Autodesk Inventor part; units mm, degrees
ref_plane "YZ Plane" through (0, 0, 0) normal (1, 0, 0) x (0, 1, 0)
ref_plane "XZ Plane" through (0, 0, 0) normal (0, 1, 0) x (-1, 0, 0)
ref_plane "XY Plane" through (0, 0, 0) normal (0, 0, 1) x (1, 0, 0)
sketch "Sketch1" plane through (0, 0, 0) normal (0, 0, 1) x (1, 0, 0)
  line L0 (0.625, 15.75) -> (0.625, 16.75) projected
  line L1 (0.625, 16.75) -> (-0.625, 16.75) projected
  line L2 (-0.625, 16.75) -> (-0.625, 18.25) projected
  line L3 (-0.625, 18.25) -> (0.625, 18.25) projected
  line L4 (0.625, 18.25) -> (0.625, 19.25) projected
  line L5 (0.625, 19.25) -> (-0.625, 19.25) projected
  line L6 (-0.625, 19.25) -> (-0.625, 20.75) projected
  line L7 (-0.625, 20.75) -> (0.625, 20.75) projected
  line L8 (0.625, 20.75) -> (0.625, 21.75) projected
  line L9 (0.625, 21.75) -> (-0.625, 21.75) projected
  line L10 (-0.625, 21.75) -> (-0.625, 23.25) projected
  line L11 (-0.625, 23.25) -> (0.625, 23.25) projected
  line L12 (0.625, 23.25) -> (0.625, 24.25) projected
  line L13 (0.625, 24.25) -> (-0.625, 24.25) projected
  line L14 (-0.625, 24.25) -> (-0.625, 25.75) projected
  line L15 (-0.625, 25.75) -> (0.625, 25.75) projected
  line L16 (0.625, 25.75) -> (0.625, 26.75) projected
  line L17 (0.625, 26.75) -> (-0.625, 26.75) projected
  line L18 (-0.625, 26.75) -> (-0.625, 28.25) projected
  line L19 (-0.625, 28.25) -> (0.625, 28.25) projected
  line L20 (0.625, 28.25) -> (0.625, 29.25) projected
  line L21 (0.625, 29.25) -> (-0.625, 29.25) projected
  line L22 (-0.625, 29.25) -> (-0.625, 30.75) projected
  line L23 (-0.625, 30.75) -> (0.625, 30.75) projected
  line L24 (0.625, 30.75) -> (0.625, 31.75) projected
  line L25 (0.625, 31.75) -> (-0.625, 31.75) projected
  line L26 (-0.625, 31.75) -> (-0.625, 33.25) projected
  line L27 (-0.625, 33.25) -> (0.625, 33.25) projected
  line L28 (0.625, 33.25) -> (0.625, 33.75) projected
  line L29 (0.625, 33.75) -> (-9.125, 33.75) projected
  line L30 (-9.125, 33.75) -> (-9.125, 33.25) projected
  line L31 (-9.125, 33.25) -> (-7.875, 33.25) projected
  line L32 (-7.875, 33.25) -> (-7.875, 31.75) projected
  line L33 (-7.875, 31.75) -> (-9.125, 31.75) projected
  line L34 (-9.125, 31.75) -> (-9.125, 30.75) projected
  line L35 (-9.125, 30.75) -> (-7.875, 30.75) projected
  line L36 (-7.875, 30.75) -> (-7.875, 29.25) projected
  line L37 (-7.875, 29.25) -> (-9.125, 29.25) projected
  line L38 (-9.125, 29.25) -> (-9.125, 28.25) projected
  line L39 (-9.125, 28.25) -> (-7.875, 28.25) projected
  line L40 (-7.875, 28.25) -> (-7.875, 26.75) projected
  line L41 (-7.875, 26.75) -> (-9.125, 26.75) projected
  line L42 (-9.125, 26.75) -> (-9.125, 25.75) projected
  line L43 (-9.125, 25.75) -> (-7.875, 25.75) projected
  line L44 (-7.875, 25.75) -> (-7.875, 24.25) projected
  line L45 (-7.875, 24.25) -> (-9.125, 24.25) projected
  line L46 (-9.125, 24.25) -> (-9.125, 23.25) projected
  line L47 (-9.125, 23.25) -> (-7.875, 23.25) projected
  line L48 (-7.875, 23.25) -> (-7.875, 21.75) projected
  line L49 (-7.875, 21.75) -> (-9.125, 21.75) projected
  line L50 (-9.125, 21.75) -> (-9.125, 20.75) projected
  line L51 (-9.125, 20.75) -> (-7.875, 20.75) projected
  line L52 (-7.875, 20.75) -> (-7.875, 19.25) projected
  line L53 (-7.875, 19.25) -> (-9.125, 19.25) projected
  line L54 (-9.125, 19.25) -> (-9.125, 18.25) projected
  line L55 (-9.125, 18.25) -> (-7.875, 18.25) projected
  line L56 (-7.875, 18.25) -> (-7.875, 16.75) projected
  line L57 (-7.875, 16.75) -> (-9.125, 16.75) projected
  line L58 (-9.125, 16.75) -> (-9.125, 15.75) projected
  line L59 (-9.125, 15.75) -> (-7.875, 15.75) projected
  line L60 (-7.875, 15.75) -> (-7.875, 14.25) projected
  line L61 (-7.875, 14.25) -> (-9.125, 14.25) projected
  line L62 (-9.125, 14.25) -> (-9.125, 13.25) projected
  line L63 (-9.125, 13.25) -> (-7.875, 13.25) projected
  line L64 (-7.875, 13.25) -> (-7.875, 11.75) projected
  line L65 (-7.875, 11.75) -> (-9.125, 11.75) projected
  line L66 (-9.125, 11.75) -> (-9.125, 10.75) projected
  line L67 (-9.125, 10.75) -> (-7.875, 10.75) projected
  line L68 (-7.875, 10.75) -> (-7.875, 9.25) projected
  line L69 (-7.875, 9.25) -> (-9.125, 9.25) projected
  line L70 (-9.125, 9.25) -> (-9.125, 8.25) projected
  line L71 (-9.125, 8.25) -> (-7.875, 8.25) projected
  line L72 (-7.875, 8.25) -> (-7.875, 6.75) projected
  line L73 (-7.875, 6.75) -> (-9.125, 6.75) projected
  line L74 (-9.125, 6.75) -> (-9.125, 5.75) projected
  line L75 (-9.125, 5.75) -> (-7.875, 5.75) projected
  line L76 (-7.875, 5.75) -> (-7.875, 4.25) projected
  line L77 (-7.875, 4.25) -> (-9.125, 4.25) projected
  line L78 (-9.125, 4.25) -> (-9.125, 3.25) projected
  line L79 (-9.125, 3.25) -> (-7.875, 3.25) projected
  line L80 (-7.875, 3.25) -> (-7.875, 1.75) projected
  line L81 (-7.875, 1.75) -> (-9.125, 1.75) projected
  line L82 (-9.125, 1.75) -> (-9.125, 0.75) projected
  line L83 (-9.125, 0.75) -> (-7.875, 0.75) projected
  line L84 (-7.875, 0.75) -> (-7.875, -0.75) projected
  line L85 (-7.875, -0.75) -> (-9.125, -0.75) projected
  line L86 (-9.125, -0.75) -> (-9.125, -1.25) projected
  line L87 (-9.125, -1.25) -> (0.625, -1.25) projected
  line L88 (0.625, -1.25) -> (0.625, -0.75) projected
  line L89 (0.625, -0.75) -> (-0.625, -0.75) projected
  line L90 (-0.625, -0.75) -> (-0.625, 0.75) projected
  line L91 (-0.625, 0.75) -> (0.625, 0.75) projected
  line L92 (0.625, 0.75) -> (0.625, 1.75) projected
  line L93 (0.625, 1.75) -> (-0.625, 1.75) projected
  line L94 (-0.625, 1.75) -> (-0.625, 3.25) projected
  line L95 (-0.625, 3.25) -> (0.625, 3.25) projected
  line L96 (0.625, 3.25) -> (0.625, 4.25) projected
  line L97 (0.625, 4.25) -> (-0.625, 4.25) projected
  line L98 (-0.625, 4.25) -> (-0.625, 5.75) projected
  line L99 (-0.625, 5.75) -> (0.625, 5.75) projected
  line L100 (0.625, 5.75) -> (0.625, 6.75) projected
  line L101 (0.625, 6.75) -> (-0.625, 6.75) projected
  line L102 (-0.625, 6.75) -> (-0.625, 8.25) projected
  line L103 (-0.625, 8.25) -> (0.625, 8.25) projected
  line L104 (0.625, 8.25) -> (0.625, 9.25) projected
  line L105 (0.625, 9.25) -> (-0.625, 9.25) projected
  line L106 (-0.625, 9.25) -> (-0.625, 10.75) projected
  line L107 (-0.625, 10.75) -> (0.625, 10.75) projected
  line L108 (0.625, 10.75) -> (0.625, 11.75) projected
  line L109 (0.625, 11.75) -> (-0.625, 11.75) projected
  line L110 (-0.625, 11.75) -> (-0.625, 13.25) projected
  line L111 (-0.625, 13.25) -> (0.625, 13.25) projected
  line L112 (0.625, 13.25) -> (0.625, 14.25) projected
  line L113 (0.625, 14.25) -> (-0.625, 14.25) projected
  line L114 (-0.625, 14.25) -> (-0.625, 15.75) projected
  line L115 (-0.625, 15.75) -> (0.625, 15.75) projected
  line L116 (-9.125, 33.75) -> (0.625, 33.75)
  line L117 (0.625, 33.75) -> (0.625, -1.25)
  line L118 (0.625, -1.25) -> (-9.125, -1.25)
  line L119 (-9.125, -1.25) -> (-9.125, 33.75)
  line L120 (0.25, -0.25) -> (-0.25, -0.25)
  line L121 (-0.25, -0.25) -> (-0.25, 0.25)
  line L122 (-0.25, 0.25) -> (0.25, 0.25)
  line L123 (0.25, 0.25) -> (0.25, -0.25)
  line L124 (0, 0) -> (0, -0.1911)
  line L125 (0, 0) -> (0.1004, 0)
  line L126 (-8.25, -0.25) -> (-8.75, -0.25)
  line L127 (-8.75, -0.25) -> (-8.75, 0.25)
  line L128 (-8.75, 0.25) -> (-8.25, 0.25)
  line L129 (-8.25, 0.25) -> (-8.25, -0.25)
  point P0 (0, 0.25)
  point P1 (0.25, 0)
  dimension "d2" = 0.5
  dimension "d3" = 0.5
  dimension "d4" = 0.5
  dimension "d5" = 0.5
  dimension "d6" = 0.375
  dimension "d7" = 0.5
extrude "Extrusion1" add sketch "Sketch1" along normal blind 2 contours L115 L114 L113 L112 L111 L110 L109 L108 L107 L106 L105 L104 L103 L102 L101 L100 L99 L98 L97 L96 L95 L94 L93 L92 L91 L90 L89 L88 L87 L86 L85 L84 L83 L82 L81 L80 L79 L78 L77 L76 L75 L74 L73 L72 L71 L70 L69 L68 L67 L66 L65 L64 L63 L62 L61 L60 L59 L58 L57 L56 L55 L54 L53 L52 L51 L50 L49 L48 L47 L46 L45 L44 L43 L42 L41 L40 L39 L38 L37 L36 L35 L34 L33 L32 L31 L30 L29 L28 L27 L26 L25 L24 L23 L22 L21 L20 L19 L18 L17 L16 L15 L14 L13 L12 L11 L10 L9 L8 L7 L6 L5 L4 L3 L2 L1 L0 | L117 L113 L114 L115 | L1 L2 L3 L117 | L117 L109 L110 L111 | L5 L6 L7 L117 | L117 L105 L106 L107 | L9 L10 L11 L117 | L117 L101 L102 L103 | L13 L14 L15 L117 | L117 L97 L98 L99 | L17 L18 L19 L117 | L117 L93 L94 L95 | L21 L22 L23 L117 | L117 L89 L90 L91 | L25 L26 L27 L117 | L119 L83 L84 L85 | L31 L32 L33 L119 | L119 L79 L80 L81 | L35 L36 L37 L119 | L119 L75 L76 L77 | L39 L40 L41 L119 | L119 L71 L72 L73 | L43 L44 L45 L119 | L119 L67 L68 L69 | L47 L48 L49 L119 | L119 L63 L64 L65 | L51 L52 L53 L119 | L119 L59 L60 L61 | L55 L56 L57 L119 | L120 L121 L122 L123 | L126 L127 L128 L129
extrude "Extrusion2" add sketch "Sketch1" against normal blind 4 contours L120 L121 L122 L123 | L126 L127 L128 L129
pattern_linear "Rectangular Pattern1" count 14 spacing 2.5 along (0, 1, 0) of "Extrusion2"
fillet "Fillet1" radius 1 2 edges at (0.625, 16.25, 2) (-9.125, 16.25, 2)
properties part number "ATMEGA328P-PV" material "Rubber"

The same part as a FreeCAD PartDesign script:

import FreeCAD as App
import Part
import Sketcher

V = App.Vector


def edges_at(feature, points):
    """Names of the edges that pass closest to the given points."""
    edges = feature.Shape.Edges
    near = lambda p: min(range(len(edges)), key=lambda i: edges[i].distToShape(Part.Vertex(*p))[0])
    return sorted({f"Edge{near(p) + 1}" for p in points})


def add_polygon(sketch, points):
    """Adds a closed chain of lines whose ends are joined by coincident constraints."""
    first, n = sketch.GeometryCount, len(points)
    for a, b in zip(points, points[1:] + points[:1]):
        sketch.addGeometry(Part.LineSegment(App.Vector(*a, 0), App.Vector(*b, 0)), False)
    for i in range(n):
        sketch.addConstraint(Sketcher.Constraint("Coincident", first + i, 2, first + (i + 1) % n, 1))

doc = App.newDocument("Part")
body = doc.addObject("PartDesign::Body", "Body")

sketch1 = body.newObject("Sketcher::SketchObject", "Sketch")
sketch1.AttachmentSupport = (doc.getObject("XY_Plane"), [""])
sketch1.MapMode = "FlatFace"
add_polygon(sketch1, [(1, 34), (-9, 34), (-9, -1), (1, -1)])
sketch1.addConstraint([
    Sketcher.Constraint("Horizontal", 0),
    Sketcher.Constraint("Vertical", 1),
    Sketcher.Constraint("Horizontal", 2),
    Sketcher.Constraint("Vertical", 3),
    Sketcher.Constraint("DistanceY", 1, 2, 1, 1, 35.0),
    Sketcher.Constraint("DistanceX", 0, 2, 0, 1, 9.75),
    Sketcher.Constraint("DistanceY", -1, 1, 0, 2, 33.75),
    Sketcher.Constraint("DistanceX", 0, 2, -1, 1, 9.125),
])
pad1 = body.newObject("PartDesign::Pad", "Pad")
pad1.Profile = sketch1
pad1.Length = 2

sketch2 = body.newObject("Sketcher::SketchObject", "Sketch001")
sketch2.AttachmentSupport = (doc.getObject("XY_Plane"), [""])
sketch2.MapMode = "FlatFace"
add_polygon(sketch2, [(-0.2, -0.2), (0.2, -0.2), (0.2, 0.2), (-0.2, 0.2)])
add_polygon(sketch2, [(-8.8, -0.2), (-8.2, -0.2), (-8.2, 0.2), (-8.8, 0.2)])
sketch2.addConstraint([
    Sketcher.Constraint("Horizontal", 0),
    Sketcher.Constraint("Vertical", 1),
    Sketcher.Constraint("Horizontal", 2),
    Sketcher.Constraint("Vertical", 3),
    Sketcher.Constraint("Horizontal", 4),
    Sketcher.Constraint("Vertical", 5),
    Sketcher.Constraint("Horizontal", 6),
    Sketcher.Constraint("Vertical", 7),
    Sketcher.Constraint("Symmetric", 0, 2, 2, 2, -1, 1),
    Sketcher.Constraint("Horizontal", 3, 2, 4, 2),
    Sketcher.Constraint("Horizontal", 2, 2, 5, 2),
    Sketcher.Constraint("Equal", 2, 4),
    Sketcher.Constraint("Equal", 6, 1),
    Sketcher.Constraint("DistanceX", 0, 1, 0, 2, 0.5),
    Sketcher.Constraint("DistanceX", 4, 2, 3, 2, 8.0),
])
pad2 = body.newObject("PartDesign::Pad", "Pad001")
pad2.Profile = sketch2
pad2.Length = 4
pad2.Reversed = True
doc.recompute()

linearpattern = body.newObject("PartDesign::LinearPattern", "LinearPattern")
linearpattern.Originals = [pad2]
linearpattern.Direction = (doc.getObject("Y_Axis"), [""])
linearpattern.Mode = "offset"
linearpattern.Offset = 2.5
linearpattern.Occurrences = 14
body.Tip = linearpattern
doc.recompute()

fillet = body.newObject("PartDesign::Fillet", "Fillet")
fillet.Base = (linearpattern, edges_at(linearpattern, [(0.625, 16.25, 2), (-9.125, 16.25, 2)]))
fillet.Radius = 1

doc.recompute()
